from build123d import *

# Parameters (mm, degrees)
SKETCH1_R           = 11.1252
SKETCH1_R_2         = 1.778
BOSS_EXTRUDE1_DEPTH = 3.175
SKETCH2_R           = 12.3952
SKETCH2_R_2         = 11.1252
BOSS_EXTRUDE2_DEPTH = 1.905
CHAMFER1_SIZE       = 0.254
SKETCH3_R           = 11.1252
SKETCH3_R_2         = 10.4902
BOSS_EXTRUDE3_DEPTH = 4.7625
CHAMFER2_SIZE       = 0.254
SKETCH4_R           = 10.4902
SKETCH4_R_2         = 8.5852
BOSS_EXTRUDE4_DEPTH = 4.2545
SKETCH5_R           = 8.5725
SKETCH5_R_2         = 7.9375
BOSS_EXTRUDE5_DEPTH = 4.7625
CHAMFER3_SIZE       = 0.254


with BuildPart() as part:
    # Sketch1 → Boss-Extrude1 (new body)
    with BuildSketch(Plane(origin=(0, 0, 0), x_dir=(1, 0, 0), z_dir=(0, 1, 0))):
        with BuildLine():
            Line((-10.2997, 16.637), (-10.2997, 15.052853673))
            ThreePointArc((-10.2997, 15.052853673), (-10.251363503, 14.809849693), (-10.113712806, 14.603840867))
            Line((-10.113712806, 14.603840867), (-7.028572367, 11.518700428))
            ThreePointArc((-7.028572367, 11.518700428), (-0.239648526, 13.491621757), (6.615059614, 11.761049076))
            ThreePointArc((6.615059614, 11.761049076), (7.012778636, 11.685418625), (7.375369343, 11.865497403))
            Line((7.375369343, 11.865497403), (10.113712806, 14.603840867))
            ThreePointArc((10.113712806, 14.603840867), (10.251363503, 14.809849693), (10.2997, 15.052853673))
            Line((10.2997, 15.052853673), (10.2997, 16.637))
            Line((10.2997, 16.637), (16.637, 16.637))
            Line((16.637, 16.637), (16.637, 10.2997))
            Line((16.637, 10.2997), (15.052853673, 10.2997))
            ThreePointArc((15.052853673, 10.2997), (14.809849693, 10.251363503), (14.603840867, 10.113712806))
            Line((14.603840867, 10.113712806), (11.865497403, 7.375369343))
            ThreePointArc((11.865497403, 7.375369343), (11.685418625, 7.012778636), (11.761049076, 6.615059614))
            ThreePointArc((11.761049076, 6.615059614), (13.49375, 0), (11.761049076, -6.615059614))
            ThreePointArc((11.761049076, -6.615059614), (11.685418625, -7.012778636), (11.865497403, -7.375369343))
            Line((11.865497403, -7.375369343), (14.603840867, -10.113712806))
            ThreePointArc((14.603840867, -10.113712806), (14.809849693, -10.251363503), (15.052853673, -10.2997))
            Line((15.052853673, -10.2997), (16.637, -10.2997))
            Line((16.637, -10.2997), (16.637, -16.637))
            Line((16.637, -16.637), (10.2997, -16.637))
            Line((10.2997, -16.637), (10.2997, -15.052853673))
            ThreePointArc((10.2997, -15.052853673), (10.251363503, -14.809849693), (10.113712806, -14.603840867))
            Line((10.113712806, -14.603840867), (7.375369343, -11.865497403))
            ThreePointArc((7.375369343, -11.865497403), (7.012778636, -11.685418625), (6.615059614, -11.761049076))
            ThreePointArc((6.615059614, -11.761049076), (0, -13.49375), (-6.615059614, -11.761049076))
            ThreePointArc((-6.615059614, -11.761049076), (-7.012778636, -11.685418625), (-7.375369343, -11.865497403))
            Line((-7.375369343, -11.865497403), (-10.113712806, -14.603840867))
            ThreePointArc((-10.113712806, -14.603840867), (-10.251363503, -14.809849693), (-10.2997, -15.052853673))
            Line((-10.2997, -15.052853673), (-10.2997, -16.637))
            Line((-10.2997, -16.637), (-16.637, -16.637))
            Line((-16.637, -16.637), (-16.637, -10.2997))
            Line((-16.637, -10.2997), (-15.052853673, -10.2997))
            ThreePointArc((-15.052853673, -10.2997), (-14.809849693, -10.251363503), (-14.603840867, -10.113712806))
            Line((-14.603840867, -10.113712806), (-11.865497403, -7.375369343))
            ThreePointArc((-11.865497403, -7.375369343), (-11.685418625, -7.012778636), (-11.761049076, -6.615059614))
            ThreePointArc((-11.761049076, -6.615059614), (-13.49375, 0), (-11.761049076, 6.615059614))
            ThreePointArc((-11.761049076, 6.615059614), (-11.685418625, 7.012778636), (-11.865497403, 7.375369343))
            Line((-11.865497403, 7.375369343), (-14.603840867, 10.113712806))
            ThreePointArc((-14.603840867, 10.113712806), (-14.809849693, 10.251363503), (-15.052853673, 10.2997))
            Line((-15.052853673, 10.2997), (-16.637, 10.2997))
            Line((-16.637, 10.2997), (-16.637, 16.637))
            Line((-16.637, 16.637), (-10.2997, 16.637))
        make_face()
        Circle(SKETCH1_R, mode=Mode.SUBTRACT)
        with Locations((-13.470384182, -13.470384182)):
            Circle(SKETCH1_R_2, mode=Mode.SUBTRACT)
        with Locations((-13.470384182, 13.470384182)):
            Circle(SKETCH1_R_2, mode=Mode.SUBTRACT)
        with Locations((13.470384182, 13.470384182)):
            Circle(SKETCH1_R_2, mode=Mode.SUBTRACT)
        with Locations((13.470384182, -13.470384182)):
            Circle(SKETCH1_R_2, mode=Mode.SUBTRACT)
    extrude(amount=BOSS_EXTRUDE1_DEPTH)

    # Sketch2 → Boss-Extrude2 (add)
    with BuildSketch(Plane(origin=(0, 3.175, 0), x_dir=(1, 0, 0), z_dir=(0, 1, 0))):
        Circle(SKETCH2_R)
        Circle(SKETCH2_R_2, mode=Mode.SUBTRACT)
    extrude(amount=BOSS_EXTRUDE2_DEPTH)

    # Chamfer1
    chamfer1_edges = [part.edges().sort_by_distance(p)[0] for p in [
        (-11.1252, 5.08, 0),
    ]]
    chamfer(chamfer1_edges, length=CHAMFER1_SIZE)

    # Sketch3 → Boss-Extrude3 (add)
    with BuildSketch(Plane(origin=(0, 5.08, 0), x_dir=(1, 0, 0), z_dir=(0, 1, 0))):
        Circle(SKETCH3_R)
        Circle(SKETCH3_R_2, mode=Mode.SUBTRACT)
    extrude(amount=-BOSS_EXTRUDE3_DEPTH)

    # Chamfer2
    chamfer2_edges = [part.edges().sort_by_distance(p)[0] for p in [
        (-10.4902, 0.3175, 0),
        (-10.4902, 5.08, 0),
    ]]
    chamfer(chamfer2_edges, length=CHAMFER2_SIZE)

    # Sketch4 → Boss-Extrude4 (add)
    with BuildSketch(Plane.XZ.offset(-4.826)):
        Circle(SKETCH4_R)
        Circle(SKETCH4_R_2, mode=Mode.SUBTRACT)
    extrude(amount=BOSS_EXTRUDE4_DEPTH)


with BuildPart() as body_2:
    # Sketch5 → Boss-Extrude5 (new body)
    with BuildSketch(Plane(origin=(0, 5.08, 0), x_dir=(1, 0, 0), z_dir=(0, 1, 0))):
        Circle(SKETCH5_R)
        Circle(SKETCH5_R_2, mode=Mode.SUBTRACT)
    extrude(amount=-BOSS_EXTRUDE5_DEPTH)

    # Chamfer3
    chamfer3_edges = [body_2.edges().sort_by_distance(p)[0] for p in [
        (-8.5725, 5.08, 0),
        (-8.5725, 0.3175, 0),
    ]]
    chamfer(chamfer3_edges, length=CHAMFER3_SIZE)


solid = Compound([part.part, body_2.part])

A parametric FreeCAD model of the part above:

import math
import FreeCAD as App
import Part
import Sketcher
from FreeCAD import Vector
Q = App.Units.Quantity


def edges_at(feature, points):
    """Names of the edges that pass closest to the given points."""
    edges = feature.Shape.Edges
    near = lambda p: min(range(len(edges)), key=lambda i: edges[i].distToShape(Part.Vertex(*p))[0])
    return sorted({f"Edge{near(p) + 1}" for p in points})

doc = App.newDocument("Part")
body = doc.addObject("PartDesign::Body", "Body")

sketch1 = body.newObject("Sketcher::SketchObject", "Sketch")
sketch1.AttachmentSupport = (doc.getObject("XZ_Plane"), [""])
sketch1.MapMode = "FlatFace"
sketch1.addGeometry([
    Part.LineSegment(Vector(-10.2997, -15.052854, 0), Vector(-10.2997, -16.637, 0)),
    Part.LineSegment(Vector(-10.2997, -16.637, 0), Vector(-16.637, -16.637, 0)),
    Part.LineSegment(Vector(-16.637, -16.637, 0), Vector(-16.637, -10.2997, 0)),
    Part.LineSegment(Vector(-16.637, -10.2997, 0), Vector(-15.052854, -10.2997, 0)),
    Part.ArcOfCircle(Part.Circle(Vector(-15.052854, -9.6647, 0), Vector(0, 0, 1), 0.635), math.radians(-90), math.radians(-45)),
    Part.LineSegment(Vector(-14.603841, -10.113713, 0), Vector(-11.865497, -7.375369, 0)),
    Part.ArcOfCircle(Part.Circle(Vector(-12.31451, -6.926357, 0), Vector(0, 0, 1), 0.635), math.radians(-45), math.radians(29.35579)),
    Part.ArcOfCircle(Part.Circle(Vector(0, 0, 0), Vector(0, 0, 1), 13.49375), math.radians(150.64421), math.radians(209.35579)),
    Part.ArcOfCircle(Part.Circle(Vector(-12.31451, 6.926357, 0), Vector(0, 0, 1), 0.635), math.radians(-29.35579), math.radians(45)),
    Part.LineSegment(Vector(-11.865497, 7.375369, 0), Vector(-14.603841, 10.113713, 0)),
    Part.ArcOfCircle(Part.Circle(Vector(-15.052854, 9.6647, 0), Vector(0, 0, 1), 0.635), math.radians(45), math.radians(90)),
    Part.LineSegment(Vector(-15.052854, 10.2997, 0), Vector(-16.637, 10.2997, 0)),
    Part.LineSegment(Vector(-16.637, 10.2997, 0), Vector(-16.637, 16.637, 0)),
    Part.LineSegment(Vector(-16.637, 16.637, 0), Vector(-10.2997, 16.637, 0)),
    Part.LineSegment(Vector(-10.2997, 16.637, 0), Vector(-10.2997, 15.052854, 0)),
    Part.ArcOfCircle(Part.Circle(Vector(-9.6647, 15.052854, 0), Vector(0, 0, 1), 0.635), math.radians(180), math.radians(225)),
    Part.LineSegment(Vector(-10.113713, 14.603841, 0), Vector(-7.375369, 11.865497, 0)),
    Part.ArcOfCircle(Part.Circle(Vector(-6.926357, 12.31451, 0), Vector(0, 0, 1), 0.635), math.radians(-135), math.radians(-60.64421)),
    Part.ArcOfCircle(Part.Circle(Vector(0, 0, 0), Vector(0, 0, 1), 13.49375), math.radians(60.64421), math.radians(119.35579)),
    Part.ArcOfCircle(Part.Circle(Vector(6.926357, 12.31451, 0), Vector(0, 0, 1), 0.635), math.radians(-119.35579), math.radians(-45)),
    Part.LineSegment(Vector(7.375369, 11.865497, 0), Vector(10.113713, 14.603841, 0)),
    Part.ArcOfCircle(Part.Circle(Vector(9.6647, 15.052854, 0), Vector(0, 0, 1), 0.635), math.radians(-45), math.radians(0)),
    Part.LineSegment(Vector(10.2997, 15.052854, 0), Vector(10.2997, 16.637, 0)),
    Part.LineSegment(Vector(10.2997, 16.637, 0), Vector(16.637, 16.637, 0)),
    Part.LineSegment(Vector(16.637, 16.637, 0), Vector(16.637, 10.2997, 0)),
    Part.LineSegment(Vector(16.637, 10.2997, 0), Vector(15.052854, 10.2997, 0)),
    Part.ArcOfCircle(Part.Circle(Vector(15.052854, 9.6647, 0), Vector(0, 0, 1), 0.635), math.radians(90), math.radians(135)),
    Part.LineSegment(Vector(14.603841, 10.113713, 0), Vector(11.865497, 7.375369, 0)),
    Part.ArcOfCircle(Part.Circle(Vector(12.31451, 6.926357, 0), Vector(0, 0, 1), 0.635), math.radians(135), math.radians(209.35579)),
    Part.ArcOfCircle(Part.Circle(Vector(0, 0, 0), Vector(0, 0, 1), 13.49375), math.radians(-29.35579), math.radians(29.35579)),
    Part.ArcOfCircle(Part.Circle(Vector(12.31451, -6.926357, 0), Vector(0, 0, 1), 0.635), math.radians(150.64421), math.radians(225)),
    Part.LineSegment(Vector(11.865497, -7.375369, 0), Vector(14.603841, -10.113713, 0)),
    Part.ArcOfCircle(Part.Circle(Vector(15.052854, -9.6647, 0), Vector(0, 0, 1), 0.635), math.radians(-135), math.radians(-90)),
    Part.LineSegment(Vector(15.052854, -10.2997, 0), Vector(16.637, -10.2997, 0)),
    Part.LineSegment(Vector(16.637, -10.2997, 0), Vector(16.637, -16.637, 0)),
    Part.LineSegment(Vector(16.637, -16.637, 0), Vector(10.2997, -16.637, 0)),
    Part.LineSegment(Vector(10.2997, -16.637, 0), Vector(10.2997, -15.052854, 0)),
    Part.ArcOfCircle(Part.Circle(Vector(9.6647, -15.052854, 0), Vector(0, 0, 1), 0.635), math.radians(0), math.radians(45)),
    Part.LineSegment(Vector(10.113713, -14.603841, 0), Vector(7.375369, -11.865497, 0)),
    Part.ArcOfCircle(Part.Circle(Vector(6.926357, -12.31451, 0), Vector(0, 0, 1), 0.635), math.radians(45), math.radians(119.35579)),
    Part.ArcOfCircle(Part.Circle(Vector(0, 0, 0), Vector(0, 0, 1), 13.49375), math.radians(-121.391039), math.radians(-60.64421)),
    Part.LineSegment(Vector(-7.028572, -11.5187, 0), Vector(-10.113713, -14.603841, 0)),
    Part.ArcOfCircle(Part.Circle(Vector(-9.6647, -15.052854, 0), Vector(0, 0, 1), 0.635), math.radians(135), math.radians(180)),
    Part.Circle(Vector(13.470384, 13.470384, 0), Vector(0, 0, 1), 1.778),
    Part.Circle(Vector(0, 0, 0), Vector(0, 0, 1), 11.1252),
    Part.Circle(Vector(-13.470384, 13.470384, 0), Vector(0, 0, 1), 1.778),
    Part.Circle(Vector(13.470384, -13.470384, 0), Vector(0, 0, 1), 1.778),
    Part.Circle(Vector(-13.470384, -13.470384, 0), Vector(0, 0, 1), 1.778),
], False)
sketch1.addConstraint([
    Sketcher.Constraint("Coincident", 0, 2, 1, 1),
    Sketcher.Constraint("Coincident", 1, 2, 2, 1),
    Sketcher.Constraint("Coincident", 2, 2, 3, 1),
    Sketcher.Constraint("Tangent", 3, 2, 4, 1),
    Sketcher.Constraint("Tangent", 4, 2, 5, 1),
    Sketcher.Constraint("Tangent", 5, 2, 6, 1),
    Sketcher.Constraint("Tangent", 6, 2, 7, 2),
    Sketcher.Constraint("Tangent", 7, 1, 8, 1),
    Sketcher.Constraint("Tangent", 8, 2, 9, 1),
    Sketcher.Constraint("Tangent", 9, 2, 10, 1),
    Sketcher.Constraint("Tangent", 10, 2, 11, 1),
    Sketcher.Constraint("Coincident", 11, 2, 12, 1),
    Sketcher.Constraint("Coincident", 12, 2, 13, 1),
    Sketcher.Constraint("Coincident", 13, 2, 14, 1),
    Sketcher.Constraint("Tangent", 14, 2, 15, 1),
    Sketcher.Constraint("Tangent", 15, 2, 16, 1),
    Sketcher.Constraint("Tangent", 16, 2, 17, 1),
    Sketcher.Constraint("Tangent", 17, 2, 18, 2),
    Sketcher.Constraint("Tangent", 18, 1, 19, 1),
    Sketcher.Constraint("Tangent", 19, 2, 20, 1),
    Sketcher.Constraint("Tangent", 20, 2, 21, 1),
    Sketcher.Constraint("Tangent", 21, 2, 22, 1),
    Sketcher.Constraint("Coincident", 22, 2, 23, 1),
    Sketcher.Constraint("Coincident", 23, 2, 24, 1),
    Sketcher.Constraint("Coincident", 24, 2, 25, 1),
    Sketcher.Constraint("Tangent", 25, 2, 26, 1),
    Sketcher.Constraint("Tangent", 26, 2, 27, 1),
    Sketcher.Constraint("Tangent", 27, 2, 28, 1),
    Sketcher.Constraint("Tangent", 28, 2, 29, 2),
    Sketcher.Constraint("Tangent", 29, 1, 30, 1),
    Sketcher.Constraint("Tangent", 30, 2, 31, 1),
    Sketcher.Constraint("Tangent", 31, 2, 32, 1),
    Sketcher.Constraint("Tangent", 32, 2, 33, 1),
    Sketcher.Constraint("Coincident", 33, 2, 34, 1),
    Sketcher.Constraint("Coincident", 34, 2, 35, 1),
    Sketcher.Constraint("Coincident", 35, 2, 36, 1),
    Sketcher.Constraint("Tangent", 36, 2, 37, 1),
    Sketcher.Constraint("Tangent", 37, 2, 38, 1),
    Sketcher.Constraint("Tangent", 38, 2, 39, 1),
    Sketcher.Constraint("Tangent", 39, 2, 40, 2),
    Sketcher.Constraint("Coincident", 40, 1, 41, 1),
    Sketcher.Constraint("Tangent", 41, 2, 42, 1),
    Sketcher.Constraint("Tangent", 42, 2, 0, 1),
    Sketcher.Constraint("Vertical", 0),
    Sketcher.Constraint("Horizontal", 1),
    Sketcher.Constraint("Vertical", 2),
    Sketcher.Constraint("Horizontal", 3),
    Sketcher.Constraint("Horizontal", 11),
    Sketcher.Constraint("Vertical", 12),
    Sketcher.Constraint("Horizontal", 13),
    Sketcher.Constraint("Vertical", 14),
    Sketcher.Constraint("Vertical", 22),
    Sketcher.Constraint("Horizontal", 23),
    Sketcher.Constraint("Vertical", 24),
    Sketcher.Constraint("Horizontal", 25),
    Sketcher.Constraint("Horizontal", 33),
    Sketcher.Constraint("Vertical", 34),
    Sketcher.Constraint("Horizontal", 35),
    Sketcher.Constraint("Vertical", 36),
    Sketcher.Constraint("Coincident", 7, 3, -1, 1),
    Sketcher.Constraint("Coincident", 18, 3, -1, 1),
    Sketcher.Constraint("Coincident", 29, 3, -1, 1),
    Sketcher.Constraint("Coincident", 40, 3, -1, 1),
    Sketcher.Constraint("Coincident", 44, 3, -1, 1),
    Sketcher.Constraint("Equal", 4, 6),
    Sketcher.Constraint("Equal", 6, 8),
    Sketcher.Constraint("Equal", 8, 10),
    Sketcher.Constraint("Equal", 10, 15),
    Sketcher.Constraint("Equal", 15, 17),
    Sketcher.Constraint("Equal", 7, 18),
    Sketcher.Constraint("Equal", 17, 19),
    Sketcher.Constraint("Equal", 19, 21),
    Sketcher.Constraint("Equal", 21, 26),
    Sketcher.Constraint("Equal", 26, 28),
    Sketcher.Constraint("Equal", 18, 29),
    Sketcher.Constraint("Equal", 28, 30),
    Sketcher.Constraint("Equal", 30, 32),
    Sketcher.Constraint("Equal", 32, 37),
    Sketcher.Constraint("Equal", 37, 39),
    Sketcher.Constraint("Equal", 29, 40),
    Sketcher.Constraint("Equal", 39, 42),
    Sketcher.Constraint("Equal", 43, 45),
    Sketcher.Constraint("Equal", 45, 46),
    Sketcher.Constraint("Equal", 46, 47),
    Sketcher.Constraint("Symmetric", 4, 3, 26, 3, -1, 1),
    Sketcher.Constraint("Symmetric", 10, 3, 32, 3, -1, 1),
    Sketcher.Constraint("Symmetric", 15, 3, 37, 3, -1, 1),
    Sketcher.Constraint("Symmetric", 21, 3, 42, 3, -1, 1),
    Sketcher.Constraint("Symmetric", 45, 3, 46, 3, -1, 1),
    Sketcher.Constraint("Symmetric", 43, 3, 47, 3, -1, 1),
    Sketcher.Constraint("Symmetric", 1, 2, 23, 2, -1, 1),
    Sketcher.Constraint("Symmetric", 12, 2, 34, 2, -1, 1),
    Sketcher.Constraint("Symmetric", 15, 3, 21, 3, -2),
    Sketcher.Constraint("Symmetric", 10, 3, 26, 3, -2),
    Sketcher.Constraint("Symmetric", 43, 3, 45, 3, -2),
    Sketcher.Constraint("Symmetric", 12, 2, 23, 2, -2),
    Sketcher.Constraint("Perpendicular", 5, 9),
    Sketcher.Constraint("Parallel", 9, 16),
    Sketcher.Constraint("Perpendicular", 16, 20),
    Sketcher.Constraint("Parallel", 20, 27),
    Sketcher.Constraint("Perpendicular", 27, 31),
    Sketcher.Constraint("Parallel", 31, 38),
    Sketcher.Constraint("Perpendicular", 38, 41),
    Sketcher.Constraint("Horizontal", 17, 3, 19, 3),
    Sketcher.Constraint("Equal", 33, 0),
    Sketcher.Constraint("Equal", 35, 2),
    Sketcher.Constraint("Equal", 9, 16),
    Sketcher.Constraint("Diameter", 43, Q("0.14 in")),
    Sketcher.Constraint("Diameter", 44, Q("0.876 in")),
    Sketcher.Constraint("Radius", 4, Q("0.025 in")),
    Sketcher.Constraint("Radius", 7, Q("0.53125 in")),
    Sketcher.Constraint("DistanceX", 1, 2, 1, 1, Q("0.2495 in")),
    Sketcher.Constraint("DistanceY", 0, 2, -1, 1, Q("0.655 in")),
    Sketcher.Constraint("DistanceY", 40, 1, -1, 1, 11.5187),
    Sketcher.Constraint("DistanceX", -1, 1, 43, 3, 13.470384),
    Sketcher.Constraint("DistanceY", -1, 1, 43, 3, 13.470384),
])
pad1 = body.newObject("PartDesign::Pad", "Pad")
pad1.Profile = sketch1
pad1.Length = Q("0.125 in")
pad1.Reversed = True

sketch2 = body.newObject("Sketcher::SketchObject", "Sketch001")
sketch2.AttachmentSupport = (doc.getObject("XZ_Plane"), [""])
sketch2.MapMode = "FlatFace"
sketch2.AttachmentOffset = App.Placement(Vector(0, 0, -0.125 * 25.4), App.Rotation())
sketch2.addGeometry([
    Part.Circle(Vector(0, 0, 0), Vector(0, 0, 1), 12.3952),
    Part.Circle(Vector(0, 0, 0), Vector(0, 0, 1), 11.1252),
], False)
sketch2.addConstraint([
    Sketcher.Constraint("Coincident", 0, 3, -1, 1),
    Sketcher.Constraint("Coincident", 1, 3, -1, 1),
    Sketcher.Constraint("Diameter", 0, Q("0.976 in")),
    Sketcher.Constraint("Diameter", 1, Q("0.876 in")),
])
pad2 = body.newObject("PartDesign::Pad", "Pad001")
pad2.Profile = sketch2
pad2.Length = Q("0.075 in")
pad2.Reversed = True
doc.recompute()

chamfer = body.newObject("PartDesign::Chamfer", "Chamfer")
chamfer.Base = (pad2, edges_at(pad2, [(-11.125, 5.08, 0)]))
chamfer.Size = Q("0.01 in")

sketch3 = body.newObject("Sketcher::SketchObject", "Sketch002")
sketch3.AttachmentSupport = (doc.getObject("XZ_Plane"), [""])
sketch3.MapMode = "FlatFace"
sketch3.AttachmentOffset = App.Placement(Vector(0, 0, -0.2 * 25.4), App.Rotation())
sketch3.addGeometry([
    Part.Circle(Vector(0, 0, 0), Vector(0, 0, 1), 11.1252),
    Part.Circle(Vector(0, 0, 0), Vector(0, 0, 1), 10.4902),
], False)
sketch3.addConstraint([
    Sketcher.Constraint("Coincident", 0, 3, -1, 1),
    Sketcher.Constraint("Coincident", 1, 3, -1, 1),
    Sketcher.Constraint("Diameter", 0, Q("0.876 in")),
    Sketcher.Constraint("Diameter", 1, Q("0.826 in")),
])
pad3 = body.newObject("PartDesign::Pad", "Pad002")
pad3.Profile = sketch3
pad3.Length = Q("0.1875 in")
doc.recompute()

chamfer2 = body.newObject("PartDesign::Chamfer", "Chamfer001")
chamfer2.Base = (pad3, edges_at(pad3, [(-10.49, 0.318, 0), (-10.49, 5.08, 0)]))
chamfer2.Size = Q("0.01 in")

sketch4 = body.newObject("Sketcher::SketchObject", "Sketch003")
sketch4.AttachmentSupport = (doc.getObject("XZ_Plane"), [""])
sketch4.MapMode = "FlatFace"
sketch4.AttachmentOffset = App.Placement(Vector(0, 0, -0.19 * 25.4), App.Rotation())
sketch4.addGeometry([
    Part.Circle(Vector(0, 0, 0), Vector(0, 0, 1), 10.4902),
    Part.Circle(Vector(0, 0, 0), Vector(0, 0, 1), 8.5852),
], False)
sketch4.addConstraint([
    Sketcher.Constraint("Coincident", 0, 3, -1, 1),
    Sketcher.Constraint("Coincident", 1, 3, -1, 1),
    Sketcher.Constraint("Diameter", 0, Q("0.826 in")),
    Sketcher.Constraint("Diameter", 1, Q("0.676 in")),
])
pad4 = body.newObject("PartDesign::Pad", "Pad003")
pad4.Profile = sketch4
pad4.Length = Q("0.1675 in")
body2 = doc.addObject("PartDesign::Body", "Body001")

sketch5 = body2.newObject("Sketcher::SketchObject", "Sketch004")
sketch5.AttachmentSupport = (doc.getObject("XZ_Plane001"), [""])
sketch5.MapMode = "FlatFace"
sketch5.AttachmentOffset = App.Placement(Vector(0, 0, -0.2 * 25.4), App.Rotation())
sketch5.addGeometry([
    Part.Circle(Vector(0, 0, 0), Vector(0, 0, 1), 8.5725),
    Part.Circle(Vector(0, 0, 0), Vector(0, 0, 1), 7.9375),
], False)
sketch5.addConstraint([
    Sketcher.Constraint("Coincident", 0, 3, -1, 1),
    Sketcher.Constraint("Coincident", 1, 3, -1, 1),
    Sketcher.Constraint("Diameter", 0, Q("0.675 in")),
    Sketcher.Constraint("Diameter", 1, Q("0.625 in")),
])
pad5 = body2.newObject("PartDesign::Pad", "Pad004")
pad5.Profile = sketch5
pad5.Length = Q("0.1875 in")
doc.recompute()

chamfer3 = body2.newObject("PartDesign::Chamfer", "Chamfer002")
chamfer3.Base = (pad5, edges_at(pad5, [(-8.572, 5.08, 0), (-8.572, 0.318, 0)]))
chamfer3.Size = Q("0.01 in")

doc.recompute()
